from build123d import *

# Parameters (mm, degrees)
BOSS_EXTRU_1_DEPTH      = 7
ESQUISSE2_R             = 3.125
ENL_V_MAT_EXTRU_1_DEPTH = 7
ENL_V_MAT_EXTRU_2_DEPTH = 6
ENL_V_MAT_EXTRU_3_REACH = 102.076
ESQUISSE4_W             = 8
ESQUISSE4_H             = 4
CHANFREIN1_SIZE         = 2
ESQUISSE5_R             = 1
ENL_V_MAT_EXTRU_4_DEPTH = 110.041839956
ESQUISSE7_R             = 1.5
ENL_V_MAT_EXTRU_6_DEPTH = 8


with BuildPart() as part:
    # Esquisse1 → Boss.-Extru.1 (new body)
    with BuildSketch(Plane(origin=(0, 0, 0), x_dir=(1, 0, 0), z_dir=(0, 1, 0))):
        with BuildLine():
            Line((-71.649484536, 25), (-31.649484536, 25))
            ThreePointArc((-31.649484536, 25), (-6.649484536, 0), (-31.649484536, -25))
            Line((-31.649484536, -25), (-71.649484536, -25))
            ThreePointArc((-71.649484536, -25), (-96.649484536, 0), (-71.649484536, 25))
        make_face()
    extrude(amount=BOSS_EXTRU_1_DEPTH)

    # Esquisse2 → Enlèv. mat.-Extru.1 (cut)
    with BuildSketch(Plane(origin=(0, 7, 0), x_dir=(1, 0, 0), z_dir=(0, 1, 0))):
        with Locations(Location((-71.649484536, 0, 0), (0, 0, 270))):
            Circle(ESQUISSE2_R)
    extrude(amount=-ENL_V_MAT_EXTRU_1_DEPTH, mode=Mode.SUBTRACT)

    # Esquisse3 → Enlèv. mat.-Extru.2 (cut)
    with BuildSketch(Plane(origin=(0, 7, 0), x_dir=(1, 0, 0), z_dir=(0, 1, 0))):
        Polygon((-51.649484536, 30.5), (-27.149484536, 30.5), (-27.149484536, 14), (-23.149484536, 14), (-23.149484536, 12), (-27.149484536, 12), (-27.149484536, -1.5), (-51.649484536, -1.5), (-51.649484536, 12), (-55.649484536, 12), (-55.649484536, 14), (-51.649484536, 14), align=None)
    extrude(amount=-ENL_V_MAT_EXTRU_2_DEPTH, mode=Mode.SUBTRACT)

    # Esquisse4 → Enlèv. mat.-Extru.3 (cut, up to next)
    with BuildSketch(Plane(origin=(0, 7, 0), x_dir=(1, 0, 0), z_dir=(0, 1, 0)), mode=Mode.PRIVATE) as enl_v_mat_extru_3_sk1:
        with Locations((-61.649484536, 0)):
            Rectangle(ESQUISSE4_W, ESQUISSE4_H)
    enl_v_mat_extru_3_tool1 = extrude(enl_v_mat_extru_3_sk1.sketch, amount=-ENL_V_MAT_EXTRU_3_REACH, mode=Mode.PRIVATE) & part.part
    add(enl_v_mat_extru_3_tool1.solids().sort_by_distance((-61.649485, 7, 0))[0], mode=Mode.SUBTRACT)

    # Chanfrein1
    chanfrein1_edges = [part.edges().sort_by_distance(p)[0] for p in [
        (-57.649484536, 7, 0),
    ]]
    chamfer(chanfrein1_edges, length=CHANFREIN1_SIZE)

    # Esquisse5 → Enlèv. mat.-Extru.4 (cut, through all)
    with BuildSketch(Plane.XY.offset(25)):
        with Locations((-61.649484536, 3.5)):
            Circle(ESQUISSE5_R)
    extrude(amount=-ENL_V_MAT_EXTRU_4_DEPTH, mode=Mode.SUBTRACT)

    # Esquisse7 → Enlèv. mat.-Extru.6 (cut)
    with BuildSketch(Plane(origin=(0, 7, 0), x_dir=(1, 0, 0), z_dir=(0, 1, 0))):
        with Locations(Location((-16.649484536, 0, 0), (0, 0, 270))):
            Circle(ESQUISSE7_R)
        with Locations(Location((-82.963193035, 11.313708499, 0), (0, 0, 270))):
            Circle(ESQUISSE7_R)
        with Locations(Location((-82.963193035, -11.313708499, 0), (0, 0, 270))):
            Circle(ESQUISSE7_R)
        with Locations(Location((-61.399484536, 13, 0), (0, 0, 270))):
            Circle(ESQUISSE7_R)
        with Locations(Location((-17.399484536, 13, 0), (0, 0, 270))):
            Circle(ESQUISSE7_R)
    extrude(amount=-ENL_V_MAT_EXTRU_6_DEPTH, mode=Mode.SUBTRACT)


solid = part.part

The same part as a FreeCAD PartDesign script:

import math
import FreeCAD as App
import Part
import Sketcher

V = App.Vector
Q = App.Units.Quantity


def edges_at(feature, points):
    """Names of the edges that pass closest to the given points."""
    edges = feature.Shape.Edges
    near = lambda p: min(range(len(edges)), key=lambda i: edges[i].distToShape(Part.Vertex(*p))[0])
    return sorted({f"Edge{near(p) + 1}" for p in points})


def add_polygon(sketch, points):
    """Adds a closed chain of lines whose ends are joined by coincident constraints."""
    first, n = sketch.GeometryCount, len(points)
    for a, b in zip(points, points[1:] + points[:1]):
        sketch.addGeometry(Part.LineSegment(App.Vector(*a, 0), App.Vector(*b, 0)), False)
    for i in range(n):
        sketch.addConstraint(Sketcher.Constraint("Coincident", first + i, 2, first + (i + 1) % n, 1))

doc = App.newDocument("Part")
body = doc.addObject("PartDesign::Body", "Body")

sketch1 = body.newObject("Sketcher::SketchObject", "Sketch")
sketch1.AttachmentSupport = (doc.getObject("XZ_Plane"), [""])
sketch1.MapMode = "FlatFace"
sketch1.addGeometry(Part.LineSegment(V(-32, -25, 0), V(-72, -25, 0)), False)
sketch1.addGeometry(Part.ArcOfCircle(Part.Circle(V(-72, 0, 0), V(0, 0, 1), 25), math.radians(90), math.radians(270)), False)
sketch1.addGeometry(Part.LineSegment(V(-72, 25, 0), V(-32, 25, 0)), False)
sketch1.addGeometry(Part.ArcOfCircle(Part.Circle(V(-32, 0, 0), V(0, 0, 1), 25), math.radians(-90), math.radians(90)), False)
sketch1.addConstraint(Sketcher.Constraint("Tangent", 0, 2, 1, 2))
sketch1.addConstraint(Sketcher.Constraint("Tangent", 1, 1, 2, 1))
sketch1.addConstraint(Sketcher.Constraint("Tangent", 2, 2, 3, 2))
sketch1.addConstraint(Sketcher.Constraint("Tangent", 3, 1, 0, 1))
sketch1.addConstraint(Sketcher.Constraint("Horizontal", 0))
sketch1.addConstraint(Sketcher.Constraint("Horizontal", 2))
sketch1.addConstraint(Sketcher.Constraint("PointOnObject", 1, 3, -1))
sketch1.addConstraint(Sketcher.Constraint("Radius", 1, Q("25 mm")))
sketch1.addConstraint(Sketcher.Constraint("DistanceX", 0, 2, 0, 1, Q("40 mm")))
sketch1.addConstraint(Sketcher.Constraint("DistanceX", 1, 3, -1, 1, Q("71.649485 mm")))
pad1 = body.newObject("PartDesign::Pad", "Pad")
pad1.Profile = sketch1
pad1.Length = 7
pad1.Reversed = True

sketch2 = body.newObject("Sketcher::SketchObject", "Sketch001")
sketch2.AttachmentSupport = (doc.getObject("XZ_Plane"), [""])
sketch2.MapMode = "FlatFace"
sketch2.AttachmentOffset = App.Placement(V(0, 0, -7), App.Rotation())
sketch2.addGeometry(Part.Circle(V(-71.6, 0, 0), V(0, 0, 1), 3.1), False)
sketch2.addConstraint(Sketcher.Constraint("PointOnObject", 0, 3, -1))
sketch2.addConstraint(Sketcher.Constraint("Diameter", 0, Q("6.25 mm")))
sketch2.addConstraint(Sketcher.Constraint("DistanceX", 0, 3, -1, 1, Q("71.649485 mm")))
pocket1 = body.newObject("PartDesign::Pocket", "Pocket")
pocket1.Profile = sketch2
pocket1.Length = 7
pocket1.Reversed = True

sketch3 = body.newObject("Sketcher::SketchObject", "Sketch002")
sketch3.AttachmentSupport = (doc.getObject("XZ_Plane"), [""])
sketch3.MapMode = "FlatFace"
sketch3.AttachmentOffset = App.Placement(V(0, 0, -7), App.Rotation())
add_polygon(sketch3, [(-27.1, -30.5), (-51.6, -30.5), (-51.6, -14), (-55.6, -14), (-55.6, -12), (-51.6, -12), (-51.6, 1.5), (-27.1, 1.5), (-27.1, -12), (-23.1, -12), (-23.1, -14), (-27.1, -14)])
sketch3.addConstraint(Sketcher.Constraint("Horizontal", 0))
sketch3.addConstraint(Sketcher.Constraint("Vertical", 1))
sketch3.addConstraint(Sketcher.Constraint("Horizontal", 2))
sketch3.addConstraint(Sketcher.Constraint("Vertical", 3))
sketch3.addConstraint(Sketcher.Constraint("Horizontal", 4))
sketch3.addConstraint(Sketcher.Constraint("Vertical", 5))
sketch3.addConstraint(Sketcher.Constraint("Horizontal", 6))
sketch3.addConstraint(Sketcher.Constraint("Vertical", 7))
sketch3.addConstraint(Sketcher.Constraint("Horizontal", 8))
sketch3.addConstraint(Sketcher.Constraint("Vertical", 9))
sketch3.addConstraint(Sketcher.Constraint("Horizontal", 10))
sketch3.addConstraint(Sketcher.Constraint("Vertical", 11))
sketch3.addConstraint(Sketcher.Constraint("Horizontal", 4, 2, 7, 2))
sketch3.addConstraint(Sketcher.Constraint("Horizontal", 2, 2, 9, 2))
sketch3.addConstraint(Sketcher.Constraint("Vertical", 1, 2, 4, 2))
sketch3.addConstraint(Sketcher.Constraint("Vertical", 7, 2, 10, 2))
sketch3.addConstraint(Sketcher.Constraint("Equal", 4, 8))
sketch3.addConstraint(Sketcher.Constraint("DistanceX", 2, 2, 2, 1, Q("4 mm")))
sketch3.addConstraint(Sketcher.Constraint("DistanceY", 3, 1, 3, 2, Q("2 mm")))
sketch3.addConstraint(Sketcher.Constraint("DistanceX", 0, 2, 0, 1, Q("24.5 mm")))
sketch3.addConstraint(Sketcher.Constraint("DistanceY", 1, 1, 1, 2, Q("16.5 mm")))
sketch3.addConstraint(Sketcher.Constraint("DistanceY", 5, 1, 5, 2, Q("13.5 mm")))
sketch3.addConstraint(Sketcher.Constraint("DistanceY", 1, 2, -1, 1, Q("14 mm")))
sketch3.addConstraint(Sketcher.Constraint("DistanceX", 0, 2, -1, 1, Q("51.649485 mm")))
pocket2 = body.newObject("PartDesign::Pocket", "Pocket001")
pocket2.Profile = sketch3
pocket2.Length = 6
pocket2.Reversed = True

sketch4 = body.newObject("Sketcher::SketchObject", "Sketch003")
sketch4.AttachmentSupport = (doc.getObject("XZ_Plane"), [""])
sketch4.MapMode = "FlatFace"
sketch4.AttachmentOffset = App.Placement(V(0, 0, -7), App.Rotation())
add_polygon(sketch4, [(-65.6, -2), (-65.6, 2), (-57.6, 2), (-57.6, -2)])
sketch4.addConstraint(Sketcher.Constraint("Vertical", 0))
sketch4.addConstraint(Sketcher.Constraint("Horizontal", 1))
sketch4.addConstraint(Sketcher.Constraint("Vertical", 2))
sketch4.addConstraint(Sketcher.Constraint("Horizontal", 3))
sketch4.addConstraint(Sketcher.Constraint("DistanceX", 1, 1, 1, 2, Q("8 mm")))
sketch4.addConstraint(Sketcher.Constraint("DistanceY", 0, 1, 0, 2, Q("4 mm")))
sketch4.addConstraint(Sketcher.Constraint("DistanceY", -1, 1, 0, 2, Q("2 mm")))
sketch4.addConstraint(Sketcher.Constraint("DistanceX", 0, 2, -1, 1, Q("65.649485 mm")))
pocket3 = body.newObject("PartDesign::Pocket", "Pocket002")
pocket3.Profile = sketch4
pocket3.Type = "UpToFirst"
pocket3.Reversed = True
doc.recompute()

chamfer = body.newObject("PartDesign::Chamfer", "Chamfer")
chamfer.Base = (pocket3, edges_at(pocket3, [(-57.649, 7, 0)]))
chamfer.Size = 2

sketch5 = body.newObject("Sketcher::SketchObject", "Sketch004")
sketch5.AttachmentSupport = (doc.getObject("XY_Plane"), [""])
sketch5.MapMode = "FlatFace"
sketch5.AttachmentOffset = App.Placement(V(0, 0, 25), App.Rotation())
sketch5.addGeometry(Part.Circle(V(-61.6, 3.5, 0), V(0, 0, 1), 1), False)
sketch5.addConstraint(Sketcher.Constraint("Diameter", 0, Q("2 mm")))
sketch5.addConstraint(Sketcher.Constraint("DistanceY", -1, 1, 0, 3, Q("3.5 mm")))
sketch5.addConstraint(Sketcher.Constraint("DistanceX", 0, 3, -1, 1, Q("61.649485 mm")))
pocket4 = body.newObject("PartDesign::Pocket", "Pocket003")
pocket4.Profile = sketch5
pocket4.Type = "ThroughAll"

sketch6 = body.newObject("Sketcher::SketchObject", "Sketch005")
sketch6.AttachmentSupport = (doc.getObject("XZ_Plane"), [""])
sketch6.MapMode = "FlatFace"
sketch6.AttachmentOffset = App.Placement(V(0, 0, -7), App.Rotation())
sketch6.addGeometry(Part.Circle(V(-16.6, 0, 0), V(0, 0, 1), 1.5), False)
sketch6.addGeometry(Part.Circle(V(-83, -11.3, 0), V(0, 0, 1), 1.5), False)
sketch6.addGeometry(Part.Circle(V(-83, 11.3, 0), V(0, 0, 1), 1.5), False)
sketch6.addGeometry(Part.Circle(V(-61.4, -13, 0), V(0, 0, 1), 1.5), False)
sketch6.addGeometry(Part.Circle(V(-17.4, -13, 0), V(0, 0, 1), 1.5), False)
sketch6.addConstraint(Sketcher.Constraint("Equal", 0, 1))
sketch6.addConstraint(Sketcher.Constraint("Equal", 1, 2))
sketch6.addConstraint(Sketcher.Constraint("Equal", 2, 3))
sketch6.addConstraint(Sketcher.Constraint("Equal", 3, 4))
sketch6.addConstraint(Sketcher.Constraint("Symmetric", 1, 3, 2, 3, -1))
sketch6.addConstraint(Sketcher.Constraint("PointOnObject", 0, 3, -1))
sketch6.addConstraint(Sketcher.Constraint("Horizontal", 3, 3, 4, 3))
sketch6.addConstraint(Sketcher.Constraint("Diameter", 0, Q("3 mm")))
sketch6.addConstraint(Sketcher.Constraint("DistanceY", 3, 3, -1, 1, Q("13 mm")))
sketch6.addConstraint(Sketcher.Constraint("DistanceX", 3, 3, 4, 3, Q("44 mm")))
sketch6.addConstraint(Sketcher.Constraint("DistanceX", 3, 3, 0, 3, Q("44.75 mm")))
sketch6.addConstraint(Sketcher.Constraint("DistanceY", 1, 3, -1, 1, Q("11.313708 mm")))
sketch6.addConstraint(Sketcher.Constraint("DistanceX", 1, 3, 0, 3, Q("66.313708 mm")))
sketch6.addConstraint(Sketcher.Constraint("DistanceX", 0, 3, -1, 1, Q("16.649485 mm")))
pocket5 = body.newObject("PartDesign::Pocket", "Pocket004")
pocket5.Profile = sketch6
pocket5.Length = 8
pocket5.Reversed = True

doc.recompute()
